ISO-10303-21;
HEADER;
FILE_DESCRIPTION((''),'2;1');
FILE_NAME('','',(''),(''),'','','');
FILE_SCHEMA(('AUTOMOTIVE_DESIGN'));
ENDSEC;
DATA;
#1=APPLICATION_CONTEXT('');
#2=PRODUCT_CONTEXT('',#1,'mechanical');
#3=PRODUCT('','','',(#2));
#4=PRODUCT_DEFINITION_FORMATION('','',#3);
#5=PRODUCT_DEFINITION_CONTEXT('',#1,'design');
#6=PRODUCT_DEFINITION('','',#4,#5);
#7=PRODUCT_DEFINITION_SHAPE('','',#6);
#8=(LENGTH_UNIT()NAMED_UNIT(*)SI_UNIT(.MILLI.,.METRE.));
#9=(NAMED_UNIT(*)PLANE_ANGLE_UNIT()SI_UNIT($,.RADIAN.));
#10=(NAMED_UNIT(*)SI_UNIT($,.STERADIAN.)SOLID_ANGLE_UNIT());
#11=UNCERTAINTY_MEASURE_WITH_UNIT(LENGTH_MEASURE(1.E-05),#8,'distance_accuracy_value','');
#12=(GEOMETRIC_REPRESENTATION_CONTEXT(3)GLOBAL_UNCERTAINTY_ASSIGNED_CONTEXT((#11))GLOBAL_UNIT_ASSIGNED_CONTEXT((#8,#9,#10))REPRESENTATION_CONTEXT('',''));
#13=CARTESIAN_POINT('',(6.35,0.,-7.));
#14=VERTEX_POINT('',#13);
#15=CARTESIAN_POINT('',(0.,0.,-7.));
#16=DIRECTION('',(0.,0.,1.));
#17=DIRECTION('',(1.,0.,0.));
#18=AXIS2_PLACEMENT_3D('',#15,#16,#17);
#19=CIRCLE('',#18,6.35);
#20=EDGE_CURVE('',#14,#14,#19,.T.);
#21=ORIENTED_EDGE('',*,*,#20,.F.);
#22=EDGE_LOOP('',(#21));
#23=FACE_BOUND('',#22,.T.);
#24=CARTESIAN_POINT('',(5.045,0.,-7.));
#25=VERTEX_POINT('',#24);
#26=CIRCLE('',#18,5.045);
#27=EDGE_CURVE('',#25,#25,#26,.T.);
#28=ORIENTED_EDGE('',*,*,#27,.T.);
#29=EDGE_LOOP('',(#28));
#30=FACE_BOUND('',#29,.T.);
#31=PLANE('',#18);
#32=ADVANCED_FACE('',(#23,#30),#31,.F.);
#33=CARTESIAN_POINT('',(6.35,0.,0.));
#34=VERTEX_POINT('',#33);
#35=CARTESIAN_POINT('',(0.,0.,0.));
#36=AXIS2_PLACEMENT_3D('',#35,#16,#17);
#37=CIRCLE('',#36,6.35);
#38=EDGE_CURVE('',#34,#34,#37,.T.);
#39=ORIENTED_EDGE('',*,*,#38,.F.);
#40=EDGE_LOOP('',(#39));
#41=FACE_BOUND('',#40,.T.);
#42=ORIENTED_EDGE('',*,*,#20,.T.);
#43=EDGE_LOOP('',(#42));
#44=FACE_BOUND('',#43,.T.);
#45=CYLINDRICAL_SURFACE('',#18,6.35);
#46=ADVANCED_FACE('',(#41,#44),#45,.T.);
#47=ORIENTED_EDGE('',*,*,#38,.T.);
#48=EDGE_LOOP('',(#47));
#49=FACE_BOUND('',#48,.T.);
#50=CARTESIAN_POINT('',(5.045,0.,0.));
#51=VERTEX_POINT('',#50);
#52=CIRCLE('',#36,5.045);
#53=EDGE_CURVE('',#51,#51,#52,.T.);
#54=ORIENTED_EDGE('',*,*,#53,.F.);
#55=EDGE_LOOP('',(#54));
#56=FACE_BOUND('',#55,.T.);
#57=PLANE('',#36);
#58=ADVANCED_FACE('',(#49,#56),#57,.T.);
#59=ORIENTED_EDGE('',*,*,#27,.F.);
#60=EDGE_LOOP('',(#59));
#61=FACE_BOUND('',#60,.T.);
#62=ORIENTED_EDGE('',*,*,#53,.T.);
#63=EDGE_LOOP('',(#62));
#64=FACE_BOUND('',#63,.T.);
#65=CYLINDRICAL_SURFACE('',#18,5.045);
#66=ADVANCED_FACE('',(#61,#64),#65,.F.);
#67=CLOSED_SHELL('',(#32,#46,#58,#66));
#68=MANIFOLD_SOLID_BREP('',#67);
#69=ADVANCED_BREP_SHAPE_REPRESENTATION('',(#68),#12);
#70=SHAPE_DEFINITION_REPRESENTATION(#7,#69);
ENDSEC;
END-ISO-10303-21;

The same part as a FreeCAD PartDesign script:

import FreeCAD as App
import Part
import Sketcher
from FreeCAD import Vector
Q = App.Units.Quantity

doc = App.newDocument("Part")
body = doc.addObject("PartDesign::Body", "Body")

# Sketch on XY plane
sketch1 = body.newObject("Sketcher::SketchObject", "Sketch")
sketch1.AttachmentSupport = (doc.getObject("XY_Plane"), [""])
sketch1.MapMode = "FlatFace"
sketch1.addGeometry([
    Part.Circle(Vector(0, 0, 0), Vector(0, 0, 1), 6),
    Part.Circle(Vector(0, 0, 0), Vector(0, 0, 1), 5),
], False)
sketch1.addConstraint([
    Sketcher.Constraint("Coincident", 0, 3, -1, 1),
    Sketcher.Constraint("Coincident", 1, 3, -1, 1),
    Sketcher.Constraint("Diameter", 0, Q("12.7 mm")),
    Sketcher.Constraint("Diameter", 1, Q("10.09 mm")),
])
pad1 = body.newObject("PartDesign::Pad", "Pad")
pad1.Profile = sketch1
pad1.Length = 7
pad1.Reversed = True

doc.recompute()
